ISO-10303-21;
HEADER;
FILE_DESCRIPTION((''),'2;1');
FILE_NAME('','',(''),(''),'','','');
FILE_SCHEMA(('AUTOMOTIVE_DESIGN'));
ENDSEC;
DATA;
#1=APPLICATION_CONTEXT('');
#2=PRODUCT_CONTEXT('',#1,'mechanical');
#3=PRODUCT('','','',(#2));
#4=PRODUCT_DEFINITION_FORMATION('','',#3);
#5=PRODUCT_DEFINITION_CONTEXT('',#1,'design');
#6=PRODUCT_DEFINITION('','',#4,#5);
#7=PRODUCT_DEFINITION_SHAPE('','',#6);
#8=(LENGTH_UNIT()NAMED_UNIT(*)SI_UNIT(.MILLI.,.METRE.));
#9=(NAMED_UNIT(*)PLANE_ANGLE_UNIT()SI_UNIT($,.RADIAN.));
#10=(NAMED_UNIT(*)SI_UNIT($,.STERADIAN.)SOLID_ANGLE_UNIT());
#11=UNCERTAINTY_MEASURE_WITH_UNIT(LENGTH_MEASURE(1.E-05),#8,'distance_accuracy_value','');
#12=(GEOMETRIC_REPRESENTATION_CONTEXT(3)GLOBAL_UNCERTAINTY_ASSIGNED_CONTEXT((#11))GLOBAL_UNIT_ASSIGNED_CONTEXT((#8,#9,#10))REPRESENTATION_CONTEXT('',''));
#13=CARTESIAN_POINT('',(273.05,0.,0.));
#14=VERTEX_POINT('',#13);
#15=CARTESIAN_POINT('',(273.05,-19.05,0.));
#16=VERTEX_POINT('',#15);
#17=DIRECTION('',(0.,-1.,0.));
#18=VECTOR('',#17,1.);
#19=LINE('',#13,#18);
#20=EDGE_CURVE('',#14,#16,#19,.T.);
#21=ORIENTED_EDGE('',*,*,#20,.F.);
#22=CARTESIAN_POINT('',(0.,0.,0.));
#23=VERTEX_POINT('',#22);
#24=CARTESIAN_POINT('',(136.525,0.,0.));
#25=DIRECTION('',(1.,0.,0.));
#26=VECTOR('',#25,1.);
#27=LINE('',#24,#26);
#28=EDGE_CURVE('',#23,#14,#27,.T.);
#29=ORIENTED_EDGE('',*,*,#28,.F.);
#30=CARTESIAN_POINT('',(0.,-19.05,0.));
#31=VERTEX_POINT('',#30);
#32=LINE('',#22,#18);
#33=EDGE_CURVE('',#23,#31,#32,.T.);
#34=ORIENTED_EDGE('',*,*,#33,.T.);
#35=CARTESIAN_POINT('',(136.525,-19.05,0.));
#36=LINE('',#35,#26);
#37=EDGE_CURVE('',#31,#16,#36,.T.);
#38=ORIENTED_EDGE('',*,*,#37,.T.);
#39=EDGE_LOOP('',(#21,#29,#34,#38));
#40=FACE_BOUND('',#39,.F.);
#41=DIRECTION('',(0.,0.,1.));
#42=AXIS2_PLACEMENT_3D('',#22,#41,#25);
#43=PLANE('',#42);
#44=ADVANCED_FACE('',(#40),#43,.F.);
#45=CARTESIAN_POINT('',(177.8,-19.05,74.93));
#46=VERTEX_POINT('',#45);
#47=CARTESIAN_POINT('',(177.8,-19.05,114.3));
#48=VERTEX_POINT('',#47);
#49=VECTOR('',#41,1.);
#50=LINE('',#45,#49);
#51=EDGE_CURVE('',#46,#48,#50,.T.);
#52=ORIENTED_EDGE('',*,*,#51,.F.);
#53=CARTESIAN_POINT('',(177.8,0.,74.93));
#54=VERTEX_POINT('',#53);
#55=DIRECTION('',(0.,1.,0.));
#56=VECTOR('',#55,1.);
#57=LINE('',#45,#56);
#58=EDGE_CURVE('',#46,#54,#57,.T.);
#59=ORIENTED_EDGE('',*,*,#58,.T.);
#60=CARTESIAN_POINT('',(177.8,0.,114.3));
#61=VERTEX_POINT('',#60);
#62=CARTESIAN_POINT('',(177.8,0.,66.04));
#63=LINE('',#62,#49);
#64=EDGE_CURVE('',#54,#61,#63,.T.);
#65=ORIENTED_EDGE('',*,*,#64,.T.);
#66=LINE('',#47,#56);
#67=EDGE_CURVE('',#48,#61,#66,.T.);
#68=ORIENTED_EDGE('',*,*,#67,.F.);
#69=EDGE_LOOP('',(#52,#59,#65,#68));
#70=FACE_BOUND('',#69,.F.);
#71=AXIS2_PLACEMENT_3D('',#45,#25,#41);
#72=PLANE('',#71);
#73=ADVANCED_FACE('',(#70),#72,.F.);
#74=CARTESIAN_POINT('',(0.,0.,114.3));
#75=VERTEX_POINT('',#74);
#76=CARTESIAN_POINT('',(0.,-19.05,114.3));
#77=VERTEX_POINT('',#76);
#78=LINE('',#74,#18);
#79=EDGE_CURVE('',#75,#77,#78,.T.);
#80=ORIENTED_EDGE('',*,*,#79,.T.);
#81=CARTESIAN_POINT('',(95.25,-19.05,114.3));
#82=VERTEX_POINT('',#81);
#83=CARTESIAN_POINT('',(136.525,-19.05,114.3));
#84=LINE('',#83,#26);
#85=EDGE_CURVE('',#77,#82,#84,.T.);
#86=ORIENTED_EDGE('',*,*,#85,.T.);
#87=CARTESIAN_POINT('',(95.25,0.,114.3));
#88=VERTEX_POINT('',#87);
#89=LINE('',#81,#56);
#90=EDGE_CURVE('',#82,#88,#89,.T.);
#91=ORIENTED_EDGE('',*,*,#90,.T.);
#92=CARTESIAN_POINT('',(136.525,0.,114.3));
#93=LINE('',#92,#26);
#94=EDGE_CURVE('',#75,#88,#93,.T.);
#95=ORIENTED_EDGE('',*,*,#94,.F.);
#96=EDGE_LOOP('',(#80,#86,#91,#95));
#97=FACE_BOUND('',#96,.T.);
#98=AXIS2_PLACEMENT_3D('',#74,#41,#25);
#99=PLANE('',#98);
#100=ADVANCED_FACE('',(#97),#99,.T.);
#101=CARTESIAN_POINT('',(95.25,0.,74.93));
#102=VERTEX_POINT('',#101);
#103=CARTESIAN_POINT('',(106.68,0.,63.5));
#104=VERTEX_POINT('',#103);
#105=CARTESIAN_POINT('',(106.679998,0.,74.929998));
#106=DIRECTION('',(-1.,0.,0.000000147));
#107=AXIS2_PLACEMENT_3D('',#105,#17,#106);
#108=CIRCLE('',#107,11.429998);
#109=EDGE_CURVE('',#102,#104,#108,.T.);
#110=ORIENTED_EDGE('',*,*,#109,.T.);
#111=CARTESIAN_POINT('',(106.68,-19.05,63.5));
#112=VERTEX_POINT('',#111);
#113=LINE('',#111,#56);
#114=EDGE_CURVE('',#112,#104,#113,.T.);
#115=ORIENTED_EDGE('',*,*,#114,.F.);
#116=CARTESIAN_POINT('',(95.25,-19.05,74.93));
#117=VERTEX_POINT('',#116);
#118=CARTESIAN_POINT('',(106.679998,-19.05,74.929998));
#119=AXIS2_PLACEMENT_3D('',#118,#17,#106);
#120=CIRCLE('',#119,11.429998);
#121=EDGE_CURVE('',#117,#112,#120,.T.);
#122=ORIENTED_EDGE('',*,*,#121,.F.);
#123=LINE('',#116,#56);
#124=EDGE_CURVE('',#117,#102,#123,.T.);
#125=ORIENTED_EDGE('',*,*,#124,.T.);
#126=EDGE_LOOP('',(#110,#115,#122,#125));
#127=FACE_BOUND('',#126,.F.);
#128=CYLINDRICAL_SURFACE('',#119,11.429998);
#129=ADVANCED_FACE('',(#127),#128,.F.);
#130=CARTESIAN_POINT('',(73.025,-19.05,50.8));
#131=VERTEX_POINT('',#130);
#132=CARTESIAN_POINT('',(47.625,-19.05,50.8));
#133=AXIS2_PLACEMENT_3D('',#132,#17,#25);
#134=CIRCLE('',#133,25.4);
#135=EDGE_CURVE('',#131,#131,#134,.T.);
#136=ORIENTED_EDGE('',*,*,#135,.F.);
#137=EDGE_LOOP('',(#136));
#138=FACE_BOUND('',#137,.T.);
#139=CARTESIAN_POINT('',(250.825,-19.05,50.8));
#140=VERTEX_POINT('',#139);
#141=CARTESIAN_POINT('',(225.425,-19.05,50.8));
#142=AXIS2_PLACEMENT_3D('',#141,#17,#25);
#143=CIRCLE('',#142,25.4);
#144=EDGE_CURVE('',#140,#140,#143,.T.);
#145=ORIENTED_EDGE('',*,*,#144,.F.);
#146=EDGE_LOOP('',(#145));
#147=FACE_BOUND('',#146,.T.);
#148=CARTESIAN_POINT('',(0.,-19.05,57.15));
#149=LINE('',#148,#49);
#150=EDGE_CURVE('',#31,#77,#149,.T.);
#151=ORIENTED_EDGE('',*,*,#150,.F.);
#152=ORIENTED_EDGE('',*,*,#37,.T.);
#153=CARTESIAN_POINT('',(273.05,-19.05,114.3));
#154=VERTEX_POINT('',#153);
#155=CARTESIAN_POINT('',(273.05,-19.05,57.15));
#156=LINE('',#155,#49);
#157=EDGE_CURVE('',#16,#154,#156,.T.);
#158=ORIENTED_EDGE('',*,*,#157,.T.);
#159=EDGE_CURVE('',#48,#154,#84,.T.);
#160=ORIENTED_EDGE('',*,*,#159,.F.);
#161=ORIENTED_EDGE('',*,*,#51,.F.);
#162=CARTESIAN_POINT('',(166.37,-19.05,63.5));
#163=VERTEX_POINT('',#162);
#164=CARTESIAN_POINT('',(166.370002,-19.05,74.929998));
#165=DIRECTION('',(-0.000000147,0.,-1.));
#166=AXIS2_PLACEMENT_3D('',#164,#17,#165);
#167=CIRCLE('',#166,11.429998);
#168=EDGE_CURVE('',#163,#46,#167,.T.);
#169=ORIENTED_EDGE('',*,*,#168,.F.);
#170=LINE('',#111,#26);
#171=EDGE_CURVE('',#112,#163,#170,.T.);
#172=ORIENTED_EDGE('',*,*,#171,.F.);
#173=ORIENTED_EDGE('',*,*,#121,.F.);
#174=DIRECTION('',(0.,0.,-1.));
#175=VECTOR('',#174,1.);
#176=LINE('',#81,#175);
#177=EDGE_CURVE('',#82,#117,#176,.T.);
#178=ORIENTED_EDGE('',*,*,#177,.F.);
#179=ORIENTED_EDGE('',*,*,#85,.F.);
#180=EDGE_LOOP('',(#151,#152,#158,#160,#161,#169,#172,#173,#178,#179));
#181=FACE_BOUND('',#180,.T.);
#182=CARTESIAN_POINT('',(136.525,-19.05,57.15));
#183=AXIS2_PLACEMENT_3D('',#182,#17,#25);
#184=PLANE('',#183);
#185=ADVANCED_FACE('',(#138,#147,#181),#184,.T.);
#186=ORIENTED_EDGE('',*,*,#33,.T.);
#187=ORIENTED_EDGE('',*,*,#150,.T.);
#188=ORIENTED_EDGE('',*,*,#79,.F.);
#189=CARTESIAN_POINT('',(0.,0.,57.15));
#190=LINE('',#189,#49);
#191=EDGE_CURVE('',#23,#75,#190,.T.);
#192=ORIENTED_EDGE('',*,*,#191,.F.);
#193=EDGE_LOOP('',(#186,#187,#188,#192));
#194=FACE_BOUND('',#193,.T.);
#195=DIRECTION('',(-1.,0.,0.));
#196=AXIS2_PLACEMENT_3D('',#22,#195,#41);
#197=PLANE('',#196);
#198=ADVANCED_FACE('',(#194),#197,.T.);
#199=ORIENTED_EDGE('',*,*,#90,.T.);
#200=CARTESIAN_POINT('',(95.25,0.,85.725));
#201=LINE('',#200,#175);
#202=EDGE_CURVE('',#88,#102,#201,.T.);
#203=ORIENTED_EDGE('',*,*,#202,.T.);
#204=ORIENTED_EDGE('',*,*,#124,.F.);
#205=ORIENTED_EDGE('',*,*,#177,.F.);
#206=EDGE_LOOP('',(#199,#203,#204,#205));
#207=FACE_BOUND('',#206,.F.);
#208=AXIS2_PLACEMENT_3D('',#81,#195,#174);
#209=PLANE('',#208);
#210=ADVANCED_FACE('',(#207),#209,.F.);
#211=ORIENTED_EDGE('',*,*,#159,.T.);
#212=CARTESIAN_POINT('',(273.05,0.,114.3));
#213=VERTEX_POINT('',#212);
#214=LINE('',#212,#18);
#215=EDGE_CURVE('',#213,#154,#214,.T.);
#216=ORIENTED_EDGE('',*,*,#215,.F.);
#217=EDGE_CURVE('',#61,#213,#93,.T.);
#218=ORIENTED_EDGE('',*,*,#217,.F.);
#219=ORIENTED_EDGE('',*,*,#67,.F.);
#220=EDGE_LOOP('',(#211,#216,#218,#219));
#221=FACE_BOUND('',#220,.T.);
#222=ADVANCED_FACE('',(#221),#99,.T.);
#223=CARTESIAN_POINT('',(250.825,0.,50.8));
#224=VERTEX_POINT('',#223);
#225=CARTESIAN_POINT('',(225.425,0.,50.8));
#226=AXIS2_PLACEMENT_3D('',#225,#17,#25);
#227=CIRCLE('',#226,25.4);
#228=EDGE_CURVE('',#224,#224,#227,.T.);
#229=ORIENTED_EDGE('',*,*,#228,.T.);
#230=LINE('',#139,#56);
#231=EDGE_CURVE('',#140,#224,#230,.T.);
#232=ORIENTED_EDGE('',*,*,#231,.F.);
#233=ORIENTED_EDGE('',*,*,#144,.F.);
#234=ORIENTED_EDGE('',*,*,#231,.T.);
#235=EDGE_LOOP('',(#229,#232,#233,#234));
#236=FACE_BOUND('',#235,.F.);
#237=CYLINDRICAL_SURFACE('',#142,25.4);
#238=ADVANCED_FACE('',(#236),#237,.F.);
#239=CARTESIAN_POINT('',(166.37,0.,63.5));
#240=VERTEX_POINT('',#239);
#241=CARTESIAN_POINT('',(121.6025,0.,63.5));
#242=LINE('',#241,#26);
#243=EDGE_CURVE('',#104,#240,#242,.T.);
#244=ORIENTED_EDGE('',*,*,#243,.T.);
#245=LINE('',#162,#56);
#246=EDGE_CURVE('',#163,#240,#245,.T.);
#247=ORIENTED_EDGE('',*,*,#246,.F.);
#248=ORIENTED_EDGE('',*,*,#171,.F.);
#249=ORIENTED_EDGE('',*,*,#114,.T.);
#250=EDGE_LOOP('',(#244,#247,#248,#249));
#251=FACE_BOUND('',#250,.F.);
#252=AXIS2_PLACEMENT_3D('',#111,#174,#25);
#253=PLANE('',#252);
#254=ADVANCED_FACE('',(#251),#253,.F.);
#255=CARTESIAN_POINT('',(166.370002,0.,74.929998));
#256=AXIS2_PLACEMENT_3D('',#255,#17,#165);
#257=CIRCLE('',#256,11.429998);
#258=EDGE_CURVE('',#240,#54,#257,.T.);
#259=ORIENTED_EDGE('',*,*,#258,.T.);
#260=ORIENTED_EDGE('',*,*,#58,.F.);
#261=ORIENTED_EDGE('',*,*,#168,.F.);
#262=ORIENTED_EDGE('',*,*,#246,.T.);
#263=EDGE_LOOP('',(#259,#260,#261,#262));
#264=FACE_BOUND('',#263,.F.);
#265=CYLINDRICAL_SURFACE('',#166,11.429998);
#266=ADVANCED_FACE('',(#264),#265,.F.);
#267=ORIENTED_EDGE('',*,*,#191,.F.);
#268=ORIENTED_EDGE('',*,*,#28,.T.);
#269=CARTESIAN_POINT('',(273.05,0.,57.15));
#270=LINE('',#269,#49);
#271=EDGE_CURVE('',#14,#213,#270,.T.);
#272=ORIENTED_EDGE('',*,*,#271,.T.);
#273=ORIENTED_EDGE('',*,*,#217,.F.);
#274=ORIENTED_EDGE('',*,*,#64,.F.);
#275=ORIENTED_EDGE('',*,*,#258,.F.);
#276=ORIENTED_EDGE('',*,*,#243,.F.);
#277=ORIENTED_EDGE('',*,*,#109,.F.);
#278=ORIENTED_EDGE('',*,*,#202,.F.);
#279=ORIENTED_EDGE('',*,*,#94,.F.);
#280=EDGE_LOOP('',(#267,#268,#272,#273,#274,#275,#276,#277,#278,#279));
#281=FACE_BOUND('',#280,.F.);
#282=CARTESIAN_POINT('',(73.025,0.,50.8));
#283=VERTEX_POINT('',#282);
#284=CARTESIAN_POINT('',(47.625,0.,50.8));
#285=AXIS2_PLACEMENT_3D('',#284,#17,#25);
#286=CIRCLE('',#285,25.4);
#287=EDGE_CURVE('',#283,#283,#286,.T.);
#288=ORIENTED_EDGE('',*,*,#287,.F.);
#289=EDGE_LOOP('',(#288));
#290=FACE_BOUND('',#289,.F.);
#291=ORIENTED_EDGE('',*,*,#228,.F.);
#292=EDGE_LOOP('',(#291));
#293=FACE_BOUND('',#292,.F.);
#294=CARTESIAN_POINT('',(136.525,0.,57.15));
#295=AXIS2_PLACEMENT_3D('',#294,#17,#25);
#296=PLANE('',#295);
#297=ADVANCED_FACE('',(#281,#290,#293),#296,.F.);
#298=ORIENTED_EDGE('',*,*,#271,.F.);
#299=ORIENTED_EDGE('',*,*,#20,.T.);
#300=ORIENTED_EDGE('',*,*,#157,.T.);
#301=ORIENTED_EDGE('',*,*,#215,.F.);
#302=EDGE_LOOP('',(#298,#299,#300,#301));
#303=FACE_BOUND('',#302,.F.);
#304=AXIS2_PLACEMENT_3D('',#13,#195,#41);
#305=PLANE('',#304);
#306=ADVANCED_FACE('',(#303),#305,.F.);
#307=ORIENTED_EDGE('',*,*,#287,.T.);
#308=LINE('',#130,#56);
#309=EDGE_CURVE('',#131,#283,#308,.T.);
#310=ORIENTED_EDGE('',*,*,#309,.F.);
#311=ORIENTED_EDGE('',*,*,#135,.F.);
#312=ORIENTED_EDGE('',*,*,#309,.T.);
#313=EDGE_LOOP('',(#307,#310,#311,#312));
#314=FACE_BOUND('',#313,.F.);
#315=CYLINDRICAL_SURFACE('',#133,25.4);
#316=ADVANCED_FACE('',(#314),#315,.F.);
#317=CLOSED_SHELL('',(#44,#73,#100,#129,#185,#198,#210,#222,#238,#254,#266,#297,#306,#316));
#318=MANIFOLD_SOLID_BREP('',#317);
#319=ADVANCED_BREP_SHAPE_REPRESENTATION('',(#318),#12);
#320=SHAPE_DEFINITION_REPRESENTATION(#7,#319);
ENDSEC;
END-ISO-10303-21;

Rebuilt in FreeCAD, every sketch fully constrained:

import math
import FreeCAD as App
import Part
import Sketcher
from FreeCAD import Vector
Q = App.Units.Quantity


def add_polygon(sketch, points):
    """Adds a closed chain of lines whose ends are joined by coincident constraints."""
    first, n = sketch.GeometryCount, len(points)
    for a, b in zip(points, points[1:] + points[:1]):
        sketch.addGeometry(Part.LineSegment(App.Vector(*a, 0), App.Vector(*b, 0)), False)
    for i in range(n):
        sketch.addConstraint(Sketcher.Constraint("Coincident", first + i, 2, first + (i + 1) % n, 1))

doc = App.newDocument("Part")
body = doc.addObject("PartDesign::Body", "Body")

sketch1 = doc.addObject("Sketcher::SketchObject", "Sketch")
body.addObject(sketch1)
sketch1.AttachmentSupport = (doc.XZ_Plane, [""])
sketch1.MapMode = "FlatFace"
add_polygon(sketch1, [(0, 114), (0, 0), (273, 0), (273, 114)])
sketch1.addConstraint([
    Sketcher.Constraint("Vertical", 0),
    Sketcher.Constraint("Horizontal", 1),
    Sketcher.Constraint("Vertical", 2),
    Sketcher.Constraint("Horizontal", 3),
    Sketcher.Constraint("Coincident", 0, 2, -1, 1),
    Sketcher.Constraint("DistanceY", 0, 2, 0, 1, Q("4.5 in")),
    Sketcher.Constraint("DistanceX", 1, 1, 1, 2, Q("10.75 in")),
])
pad1 = doc.addObject("PartDesign::Pad", "Pad")
body.addObject(pad1)
pad1.Profile = sketch1
pad1.Length = Q("0.75 in")

sketch2 = doc.addObject("Sketcher::SketchObject", "Sketch001")
body.addObject(sketch2)
sketch2.AttachmentSupport = (doc.XZ_Plane, [""])
sketch2.MapMode = "FlatFace"
sketch2.AttachmentOffset = App.Placement(Vector(0, 0, 0.75 * 25.4), App.Rotation())
sketch2.addGeometry([
    Part.Circle(Vector(225, 51, 0), Vector(0, 0, 1), 25),
    Part.Circle(Vector(48, 51, 0), Vector(0, 0, 1), 25),
], False)
sketch2.addConstraint([
    Sketcher.Constraint("Equal", 0, 1),
    Sketcher.Constraint("Horizontal", 0, 3, 1, 3),
    Sketcher.Constraint("Diameter", 0, Q("2 in")),
    Sketcher.Constraint("DistanceY", -1, 1, 0, 3, Q("2 in")),
    Sketcher.Constraint("DistanceX", 1, 3, 0, 3, Q("7 in")),
    Sketcher.Constraint("DistanceX", -1, 1, 0, 3, Q("8.875 in")),
])
pocket1 = doc.addObject("PartDesign::Pocket", "Pocket")
body.addObject(pocket1)
pocket1.Profile = sketch2
pocket1.Length = Q("1 in")

sketch3 = doc.addObject("Sketcher::SketchObject", "Sketch002")
body.addObject(sketch3)
sketch3.AttachmentSupport = (doc.XZ_Plane, [""])
sketch3.MapMode = "FlatFace"
sketch3.AttachmentOffset = App.Placement(Vector(0, 0, 0.75 * 25.4), App.Rotation())
sketch3.addGeometry([
    Part.LineSegment(Vector(178, 114, 0), Vector(95, 114, 0)),
    Part.LineSegment(Vector(95, 114, 0), Vector(95, 75, 0)),
    Part.ArcOfCircle(Part.Circle(Vector(107, 75, 0), Vector(0, 0, 1), 11), math.radians(180), math.radians(270)),
    Part.LineSegment(Vector(107, 64, 0), Vector(166, 64, 0)),
    Part.ArcOfCircle(Part.Circle(Vector(166, 75, 0), Vector(0, 0, 1), 11), math.radians(-90), math.radians(0)),
    Part.LineSegment(Vector(178, 75, 0), Vector(178, 114, 0)),
], False)
sketch3.addConstraint([
    Sketcher.Constraint("Coincident", 0, 2, 1, 1),
    Sketcher.Constraint("Tangent", 1, 2, 2, 1),
    Sketcher.Constraint("Tangent", 2, 2, 3, 1),
    Sketcher.Constraint("Tangent", 3, 2, 4, 1),
    Sketcher.Constraint("Tangent", 4, 2, 5, 1),
    Sketcher.Constraint("Coincident", 5, 2, 0, 1),
    Sketcher.Constraint("Horizontal", 0),
    Sketcher.Constraint("Vertical", 1),
    Sketcher.Constraint("Horizontal", 3),
    Sketcher.Constraint("Vertical", 5),
    Sketcher.Constraint("Equal", 2, 4),
    Sketcher.Constraint("Radius", 2, Q("0.4499999 in")),
    Sketcher.Constraint("DistanceX", -1, 1, 4, 2, Q("7 in")),
    Sketcher.Constraint("DistanceY", 2, 2, 0, 2, Q("2 in")),
    Sketcher.Constraint("DistanceX", 0, 2, 0, 1, Q("3.25 in")),
    Sketcher.Constraint("DistanceY", -1, 1, 0, 2, Q("4.5 in")),
])
pocket2 = doc.addObject("PartDesign::Pocket", "Pocket001")
body.addObject(pocket2)
pocket2.Profile = sketch3
pocket2.Length = Q("1 in")

doc.recompute()
